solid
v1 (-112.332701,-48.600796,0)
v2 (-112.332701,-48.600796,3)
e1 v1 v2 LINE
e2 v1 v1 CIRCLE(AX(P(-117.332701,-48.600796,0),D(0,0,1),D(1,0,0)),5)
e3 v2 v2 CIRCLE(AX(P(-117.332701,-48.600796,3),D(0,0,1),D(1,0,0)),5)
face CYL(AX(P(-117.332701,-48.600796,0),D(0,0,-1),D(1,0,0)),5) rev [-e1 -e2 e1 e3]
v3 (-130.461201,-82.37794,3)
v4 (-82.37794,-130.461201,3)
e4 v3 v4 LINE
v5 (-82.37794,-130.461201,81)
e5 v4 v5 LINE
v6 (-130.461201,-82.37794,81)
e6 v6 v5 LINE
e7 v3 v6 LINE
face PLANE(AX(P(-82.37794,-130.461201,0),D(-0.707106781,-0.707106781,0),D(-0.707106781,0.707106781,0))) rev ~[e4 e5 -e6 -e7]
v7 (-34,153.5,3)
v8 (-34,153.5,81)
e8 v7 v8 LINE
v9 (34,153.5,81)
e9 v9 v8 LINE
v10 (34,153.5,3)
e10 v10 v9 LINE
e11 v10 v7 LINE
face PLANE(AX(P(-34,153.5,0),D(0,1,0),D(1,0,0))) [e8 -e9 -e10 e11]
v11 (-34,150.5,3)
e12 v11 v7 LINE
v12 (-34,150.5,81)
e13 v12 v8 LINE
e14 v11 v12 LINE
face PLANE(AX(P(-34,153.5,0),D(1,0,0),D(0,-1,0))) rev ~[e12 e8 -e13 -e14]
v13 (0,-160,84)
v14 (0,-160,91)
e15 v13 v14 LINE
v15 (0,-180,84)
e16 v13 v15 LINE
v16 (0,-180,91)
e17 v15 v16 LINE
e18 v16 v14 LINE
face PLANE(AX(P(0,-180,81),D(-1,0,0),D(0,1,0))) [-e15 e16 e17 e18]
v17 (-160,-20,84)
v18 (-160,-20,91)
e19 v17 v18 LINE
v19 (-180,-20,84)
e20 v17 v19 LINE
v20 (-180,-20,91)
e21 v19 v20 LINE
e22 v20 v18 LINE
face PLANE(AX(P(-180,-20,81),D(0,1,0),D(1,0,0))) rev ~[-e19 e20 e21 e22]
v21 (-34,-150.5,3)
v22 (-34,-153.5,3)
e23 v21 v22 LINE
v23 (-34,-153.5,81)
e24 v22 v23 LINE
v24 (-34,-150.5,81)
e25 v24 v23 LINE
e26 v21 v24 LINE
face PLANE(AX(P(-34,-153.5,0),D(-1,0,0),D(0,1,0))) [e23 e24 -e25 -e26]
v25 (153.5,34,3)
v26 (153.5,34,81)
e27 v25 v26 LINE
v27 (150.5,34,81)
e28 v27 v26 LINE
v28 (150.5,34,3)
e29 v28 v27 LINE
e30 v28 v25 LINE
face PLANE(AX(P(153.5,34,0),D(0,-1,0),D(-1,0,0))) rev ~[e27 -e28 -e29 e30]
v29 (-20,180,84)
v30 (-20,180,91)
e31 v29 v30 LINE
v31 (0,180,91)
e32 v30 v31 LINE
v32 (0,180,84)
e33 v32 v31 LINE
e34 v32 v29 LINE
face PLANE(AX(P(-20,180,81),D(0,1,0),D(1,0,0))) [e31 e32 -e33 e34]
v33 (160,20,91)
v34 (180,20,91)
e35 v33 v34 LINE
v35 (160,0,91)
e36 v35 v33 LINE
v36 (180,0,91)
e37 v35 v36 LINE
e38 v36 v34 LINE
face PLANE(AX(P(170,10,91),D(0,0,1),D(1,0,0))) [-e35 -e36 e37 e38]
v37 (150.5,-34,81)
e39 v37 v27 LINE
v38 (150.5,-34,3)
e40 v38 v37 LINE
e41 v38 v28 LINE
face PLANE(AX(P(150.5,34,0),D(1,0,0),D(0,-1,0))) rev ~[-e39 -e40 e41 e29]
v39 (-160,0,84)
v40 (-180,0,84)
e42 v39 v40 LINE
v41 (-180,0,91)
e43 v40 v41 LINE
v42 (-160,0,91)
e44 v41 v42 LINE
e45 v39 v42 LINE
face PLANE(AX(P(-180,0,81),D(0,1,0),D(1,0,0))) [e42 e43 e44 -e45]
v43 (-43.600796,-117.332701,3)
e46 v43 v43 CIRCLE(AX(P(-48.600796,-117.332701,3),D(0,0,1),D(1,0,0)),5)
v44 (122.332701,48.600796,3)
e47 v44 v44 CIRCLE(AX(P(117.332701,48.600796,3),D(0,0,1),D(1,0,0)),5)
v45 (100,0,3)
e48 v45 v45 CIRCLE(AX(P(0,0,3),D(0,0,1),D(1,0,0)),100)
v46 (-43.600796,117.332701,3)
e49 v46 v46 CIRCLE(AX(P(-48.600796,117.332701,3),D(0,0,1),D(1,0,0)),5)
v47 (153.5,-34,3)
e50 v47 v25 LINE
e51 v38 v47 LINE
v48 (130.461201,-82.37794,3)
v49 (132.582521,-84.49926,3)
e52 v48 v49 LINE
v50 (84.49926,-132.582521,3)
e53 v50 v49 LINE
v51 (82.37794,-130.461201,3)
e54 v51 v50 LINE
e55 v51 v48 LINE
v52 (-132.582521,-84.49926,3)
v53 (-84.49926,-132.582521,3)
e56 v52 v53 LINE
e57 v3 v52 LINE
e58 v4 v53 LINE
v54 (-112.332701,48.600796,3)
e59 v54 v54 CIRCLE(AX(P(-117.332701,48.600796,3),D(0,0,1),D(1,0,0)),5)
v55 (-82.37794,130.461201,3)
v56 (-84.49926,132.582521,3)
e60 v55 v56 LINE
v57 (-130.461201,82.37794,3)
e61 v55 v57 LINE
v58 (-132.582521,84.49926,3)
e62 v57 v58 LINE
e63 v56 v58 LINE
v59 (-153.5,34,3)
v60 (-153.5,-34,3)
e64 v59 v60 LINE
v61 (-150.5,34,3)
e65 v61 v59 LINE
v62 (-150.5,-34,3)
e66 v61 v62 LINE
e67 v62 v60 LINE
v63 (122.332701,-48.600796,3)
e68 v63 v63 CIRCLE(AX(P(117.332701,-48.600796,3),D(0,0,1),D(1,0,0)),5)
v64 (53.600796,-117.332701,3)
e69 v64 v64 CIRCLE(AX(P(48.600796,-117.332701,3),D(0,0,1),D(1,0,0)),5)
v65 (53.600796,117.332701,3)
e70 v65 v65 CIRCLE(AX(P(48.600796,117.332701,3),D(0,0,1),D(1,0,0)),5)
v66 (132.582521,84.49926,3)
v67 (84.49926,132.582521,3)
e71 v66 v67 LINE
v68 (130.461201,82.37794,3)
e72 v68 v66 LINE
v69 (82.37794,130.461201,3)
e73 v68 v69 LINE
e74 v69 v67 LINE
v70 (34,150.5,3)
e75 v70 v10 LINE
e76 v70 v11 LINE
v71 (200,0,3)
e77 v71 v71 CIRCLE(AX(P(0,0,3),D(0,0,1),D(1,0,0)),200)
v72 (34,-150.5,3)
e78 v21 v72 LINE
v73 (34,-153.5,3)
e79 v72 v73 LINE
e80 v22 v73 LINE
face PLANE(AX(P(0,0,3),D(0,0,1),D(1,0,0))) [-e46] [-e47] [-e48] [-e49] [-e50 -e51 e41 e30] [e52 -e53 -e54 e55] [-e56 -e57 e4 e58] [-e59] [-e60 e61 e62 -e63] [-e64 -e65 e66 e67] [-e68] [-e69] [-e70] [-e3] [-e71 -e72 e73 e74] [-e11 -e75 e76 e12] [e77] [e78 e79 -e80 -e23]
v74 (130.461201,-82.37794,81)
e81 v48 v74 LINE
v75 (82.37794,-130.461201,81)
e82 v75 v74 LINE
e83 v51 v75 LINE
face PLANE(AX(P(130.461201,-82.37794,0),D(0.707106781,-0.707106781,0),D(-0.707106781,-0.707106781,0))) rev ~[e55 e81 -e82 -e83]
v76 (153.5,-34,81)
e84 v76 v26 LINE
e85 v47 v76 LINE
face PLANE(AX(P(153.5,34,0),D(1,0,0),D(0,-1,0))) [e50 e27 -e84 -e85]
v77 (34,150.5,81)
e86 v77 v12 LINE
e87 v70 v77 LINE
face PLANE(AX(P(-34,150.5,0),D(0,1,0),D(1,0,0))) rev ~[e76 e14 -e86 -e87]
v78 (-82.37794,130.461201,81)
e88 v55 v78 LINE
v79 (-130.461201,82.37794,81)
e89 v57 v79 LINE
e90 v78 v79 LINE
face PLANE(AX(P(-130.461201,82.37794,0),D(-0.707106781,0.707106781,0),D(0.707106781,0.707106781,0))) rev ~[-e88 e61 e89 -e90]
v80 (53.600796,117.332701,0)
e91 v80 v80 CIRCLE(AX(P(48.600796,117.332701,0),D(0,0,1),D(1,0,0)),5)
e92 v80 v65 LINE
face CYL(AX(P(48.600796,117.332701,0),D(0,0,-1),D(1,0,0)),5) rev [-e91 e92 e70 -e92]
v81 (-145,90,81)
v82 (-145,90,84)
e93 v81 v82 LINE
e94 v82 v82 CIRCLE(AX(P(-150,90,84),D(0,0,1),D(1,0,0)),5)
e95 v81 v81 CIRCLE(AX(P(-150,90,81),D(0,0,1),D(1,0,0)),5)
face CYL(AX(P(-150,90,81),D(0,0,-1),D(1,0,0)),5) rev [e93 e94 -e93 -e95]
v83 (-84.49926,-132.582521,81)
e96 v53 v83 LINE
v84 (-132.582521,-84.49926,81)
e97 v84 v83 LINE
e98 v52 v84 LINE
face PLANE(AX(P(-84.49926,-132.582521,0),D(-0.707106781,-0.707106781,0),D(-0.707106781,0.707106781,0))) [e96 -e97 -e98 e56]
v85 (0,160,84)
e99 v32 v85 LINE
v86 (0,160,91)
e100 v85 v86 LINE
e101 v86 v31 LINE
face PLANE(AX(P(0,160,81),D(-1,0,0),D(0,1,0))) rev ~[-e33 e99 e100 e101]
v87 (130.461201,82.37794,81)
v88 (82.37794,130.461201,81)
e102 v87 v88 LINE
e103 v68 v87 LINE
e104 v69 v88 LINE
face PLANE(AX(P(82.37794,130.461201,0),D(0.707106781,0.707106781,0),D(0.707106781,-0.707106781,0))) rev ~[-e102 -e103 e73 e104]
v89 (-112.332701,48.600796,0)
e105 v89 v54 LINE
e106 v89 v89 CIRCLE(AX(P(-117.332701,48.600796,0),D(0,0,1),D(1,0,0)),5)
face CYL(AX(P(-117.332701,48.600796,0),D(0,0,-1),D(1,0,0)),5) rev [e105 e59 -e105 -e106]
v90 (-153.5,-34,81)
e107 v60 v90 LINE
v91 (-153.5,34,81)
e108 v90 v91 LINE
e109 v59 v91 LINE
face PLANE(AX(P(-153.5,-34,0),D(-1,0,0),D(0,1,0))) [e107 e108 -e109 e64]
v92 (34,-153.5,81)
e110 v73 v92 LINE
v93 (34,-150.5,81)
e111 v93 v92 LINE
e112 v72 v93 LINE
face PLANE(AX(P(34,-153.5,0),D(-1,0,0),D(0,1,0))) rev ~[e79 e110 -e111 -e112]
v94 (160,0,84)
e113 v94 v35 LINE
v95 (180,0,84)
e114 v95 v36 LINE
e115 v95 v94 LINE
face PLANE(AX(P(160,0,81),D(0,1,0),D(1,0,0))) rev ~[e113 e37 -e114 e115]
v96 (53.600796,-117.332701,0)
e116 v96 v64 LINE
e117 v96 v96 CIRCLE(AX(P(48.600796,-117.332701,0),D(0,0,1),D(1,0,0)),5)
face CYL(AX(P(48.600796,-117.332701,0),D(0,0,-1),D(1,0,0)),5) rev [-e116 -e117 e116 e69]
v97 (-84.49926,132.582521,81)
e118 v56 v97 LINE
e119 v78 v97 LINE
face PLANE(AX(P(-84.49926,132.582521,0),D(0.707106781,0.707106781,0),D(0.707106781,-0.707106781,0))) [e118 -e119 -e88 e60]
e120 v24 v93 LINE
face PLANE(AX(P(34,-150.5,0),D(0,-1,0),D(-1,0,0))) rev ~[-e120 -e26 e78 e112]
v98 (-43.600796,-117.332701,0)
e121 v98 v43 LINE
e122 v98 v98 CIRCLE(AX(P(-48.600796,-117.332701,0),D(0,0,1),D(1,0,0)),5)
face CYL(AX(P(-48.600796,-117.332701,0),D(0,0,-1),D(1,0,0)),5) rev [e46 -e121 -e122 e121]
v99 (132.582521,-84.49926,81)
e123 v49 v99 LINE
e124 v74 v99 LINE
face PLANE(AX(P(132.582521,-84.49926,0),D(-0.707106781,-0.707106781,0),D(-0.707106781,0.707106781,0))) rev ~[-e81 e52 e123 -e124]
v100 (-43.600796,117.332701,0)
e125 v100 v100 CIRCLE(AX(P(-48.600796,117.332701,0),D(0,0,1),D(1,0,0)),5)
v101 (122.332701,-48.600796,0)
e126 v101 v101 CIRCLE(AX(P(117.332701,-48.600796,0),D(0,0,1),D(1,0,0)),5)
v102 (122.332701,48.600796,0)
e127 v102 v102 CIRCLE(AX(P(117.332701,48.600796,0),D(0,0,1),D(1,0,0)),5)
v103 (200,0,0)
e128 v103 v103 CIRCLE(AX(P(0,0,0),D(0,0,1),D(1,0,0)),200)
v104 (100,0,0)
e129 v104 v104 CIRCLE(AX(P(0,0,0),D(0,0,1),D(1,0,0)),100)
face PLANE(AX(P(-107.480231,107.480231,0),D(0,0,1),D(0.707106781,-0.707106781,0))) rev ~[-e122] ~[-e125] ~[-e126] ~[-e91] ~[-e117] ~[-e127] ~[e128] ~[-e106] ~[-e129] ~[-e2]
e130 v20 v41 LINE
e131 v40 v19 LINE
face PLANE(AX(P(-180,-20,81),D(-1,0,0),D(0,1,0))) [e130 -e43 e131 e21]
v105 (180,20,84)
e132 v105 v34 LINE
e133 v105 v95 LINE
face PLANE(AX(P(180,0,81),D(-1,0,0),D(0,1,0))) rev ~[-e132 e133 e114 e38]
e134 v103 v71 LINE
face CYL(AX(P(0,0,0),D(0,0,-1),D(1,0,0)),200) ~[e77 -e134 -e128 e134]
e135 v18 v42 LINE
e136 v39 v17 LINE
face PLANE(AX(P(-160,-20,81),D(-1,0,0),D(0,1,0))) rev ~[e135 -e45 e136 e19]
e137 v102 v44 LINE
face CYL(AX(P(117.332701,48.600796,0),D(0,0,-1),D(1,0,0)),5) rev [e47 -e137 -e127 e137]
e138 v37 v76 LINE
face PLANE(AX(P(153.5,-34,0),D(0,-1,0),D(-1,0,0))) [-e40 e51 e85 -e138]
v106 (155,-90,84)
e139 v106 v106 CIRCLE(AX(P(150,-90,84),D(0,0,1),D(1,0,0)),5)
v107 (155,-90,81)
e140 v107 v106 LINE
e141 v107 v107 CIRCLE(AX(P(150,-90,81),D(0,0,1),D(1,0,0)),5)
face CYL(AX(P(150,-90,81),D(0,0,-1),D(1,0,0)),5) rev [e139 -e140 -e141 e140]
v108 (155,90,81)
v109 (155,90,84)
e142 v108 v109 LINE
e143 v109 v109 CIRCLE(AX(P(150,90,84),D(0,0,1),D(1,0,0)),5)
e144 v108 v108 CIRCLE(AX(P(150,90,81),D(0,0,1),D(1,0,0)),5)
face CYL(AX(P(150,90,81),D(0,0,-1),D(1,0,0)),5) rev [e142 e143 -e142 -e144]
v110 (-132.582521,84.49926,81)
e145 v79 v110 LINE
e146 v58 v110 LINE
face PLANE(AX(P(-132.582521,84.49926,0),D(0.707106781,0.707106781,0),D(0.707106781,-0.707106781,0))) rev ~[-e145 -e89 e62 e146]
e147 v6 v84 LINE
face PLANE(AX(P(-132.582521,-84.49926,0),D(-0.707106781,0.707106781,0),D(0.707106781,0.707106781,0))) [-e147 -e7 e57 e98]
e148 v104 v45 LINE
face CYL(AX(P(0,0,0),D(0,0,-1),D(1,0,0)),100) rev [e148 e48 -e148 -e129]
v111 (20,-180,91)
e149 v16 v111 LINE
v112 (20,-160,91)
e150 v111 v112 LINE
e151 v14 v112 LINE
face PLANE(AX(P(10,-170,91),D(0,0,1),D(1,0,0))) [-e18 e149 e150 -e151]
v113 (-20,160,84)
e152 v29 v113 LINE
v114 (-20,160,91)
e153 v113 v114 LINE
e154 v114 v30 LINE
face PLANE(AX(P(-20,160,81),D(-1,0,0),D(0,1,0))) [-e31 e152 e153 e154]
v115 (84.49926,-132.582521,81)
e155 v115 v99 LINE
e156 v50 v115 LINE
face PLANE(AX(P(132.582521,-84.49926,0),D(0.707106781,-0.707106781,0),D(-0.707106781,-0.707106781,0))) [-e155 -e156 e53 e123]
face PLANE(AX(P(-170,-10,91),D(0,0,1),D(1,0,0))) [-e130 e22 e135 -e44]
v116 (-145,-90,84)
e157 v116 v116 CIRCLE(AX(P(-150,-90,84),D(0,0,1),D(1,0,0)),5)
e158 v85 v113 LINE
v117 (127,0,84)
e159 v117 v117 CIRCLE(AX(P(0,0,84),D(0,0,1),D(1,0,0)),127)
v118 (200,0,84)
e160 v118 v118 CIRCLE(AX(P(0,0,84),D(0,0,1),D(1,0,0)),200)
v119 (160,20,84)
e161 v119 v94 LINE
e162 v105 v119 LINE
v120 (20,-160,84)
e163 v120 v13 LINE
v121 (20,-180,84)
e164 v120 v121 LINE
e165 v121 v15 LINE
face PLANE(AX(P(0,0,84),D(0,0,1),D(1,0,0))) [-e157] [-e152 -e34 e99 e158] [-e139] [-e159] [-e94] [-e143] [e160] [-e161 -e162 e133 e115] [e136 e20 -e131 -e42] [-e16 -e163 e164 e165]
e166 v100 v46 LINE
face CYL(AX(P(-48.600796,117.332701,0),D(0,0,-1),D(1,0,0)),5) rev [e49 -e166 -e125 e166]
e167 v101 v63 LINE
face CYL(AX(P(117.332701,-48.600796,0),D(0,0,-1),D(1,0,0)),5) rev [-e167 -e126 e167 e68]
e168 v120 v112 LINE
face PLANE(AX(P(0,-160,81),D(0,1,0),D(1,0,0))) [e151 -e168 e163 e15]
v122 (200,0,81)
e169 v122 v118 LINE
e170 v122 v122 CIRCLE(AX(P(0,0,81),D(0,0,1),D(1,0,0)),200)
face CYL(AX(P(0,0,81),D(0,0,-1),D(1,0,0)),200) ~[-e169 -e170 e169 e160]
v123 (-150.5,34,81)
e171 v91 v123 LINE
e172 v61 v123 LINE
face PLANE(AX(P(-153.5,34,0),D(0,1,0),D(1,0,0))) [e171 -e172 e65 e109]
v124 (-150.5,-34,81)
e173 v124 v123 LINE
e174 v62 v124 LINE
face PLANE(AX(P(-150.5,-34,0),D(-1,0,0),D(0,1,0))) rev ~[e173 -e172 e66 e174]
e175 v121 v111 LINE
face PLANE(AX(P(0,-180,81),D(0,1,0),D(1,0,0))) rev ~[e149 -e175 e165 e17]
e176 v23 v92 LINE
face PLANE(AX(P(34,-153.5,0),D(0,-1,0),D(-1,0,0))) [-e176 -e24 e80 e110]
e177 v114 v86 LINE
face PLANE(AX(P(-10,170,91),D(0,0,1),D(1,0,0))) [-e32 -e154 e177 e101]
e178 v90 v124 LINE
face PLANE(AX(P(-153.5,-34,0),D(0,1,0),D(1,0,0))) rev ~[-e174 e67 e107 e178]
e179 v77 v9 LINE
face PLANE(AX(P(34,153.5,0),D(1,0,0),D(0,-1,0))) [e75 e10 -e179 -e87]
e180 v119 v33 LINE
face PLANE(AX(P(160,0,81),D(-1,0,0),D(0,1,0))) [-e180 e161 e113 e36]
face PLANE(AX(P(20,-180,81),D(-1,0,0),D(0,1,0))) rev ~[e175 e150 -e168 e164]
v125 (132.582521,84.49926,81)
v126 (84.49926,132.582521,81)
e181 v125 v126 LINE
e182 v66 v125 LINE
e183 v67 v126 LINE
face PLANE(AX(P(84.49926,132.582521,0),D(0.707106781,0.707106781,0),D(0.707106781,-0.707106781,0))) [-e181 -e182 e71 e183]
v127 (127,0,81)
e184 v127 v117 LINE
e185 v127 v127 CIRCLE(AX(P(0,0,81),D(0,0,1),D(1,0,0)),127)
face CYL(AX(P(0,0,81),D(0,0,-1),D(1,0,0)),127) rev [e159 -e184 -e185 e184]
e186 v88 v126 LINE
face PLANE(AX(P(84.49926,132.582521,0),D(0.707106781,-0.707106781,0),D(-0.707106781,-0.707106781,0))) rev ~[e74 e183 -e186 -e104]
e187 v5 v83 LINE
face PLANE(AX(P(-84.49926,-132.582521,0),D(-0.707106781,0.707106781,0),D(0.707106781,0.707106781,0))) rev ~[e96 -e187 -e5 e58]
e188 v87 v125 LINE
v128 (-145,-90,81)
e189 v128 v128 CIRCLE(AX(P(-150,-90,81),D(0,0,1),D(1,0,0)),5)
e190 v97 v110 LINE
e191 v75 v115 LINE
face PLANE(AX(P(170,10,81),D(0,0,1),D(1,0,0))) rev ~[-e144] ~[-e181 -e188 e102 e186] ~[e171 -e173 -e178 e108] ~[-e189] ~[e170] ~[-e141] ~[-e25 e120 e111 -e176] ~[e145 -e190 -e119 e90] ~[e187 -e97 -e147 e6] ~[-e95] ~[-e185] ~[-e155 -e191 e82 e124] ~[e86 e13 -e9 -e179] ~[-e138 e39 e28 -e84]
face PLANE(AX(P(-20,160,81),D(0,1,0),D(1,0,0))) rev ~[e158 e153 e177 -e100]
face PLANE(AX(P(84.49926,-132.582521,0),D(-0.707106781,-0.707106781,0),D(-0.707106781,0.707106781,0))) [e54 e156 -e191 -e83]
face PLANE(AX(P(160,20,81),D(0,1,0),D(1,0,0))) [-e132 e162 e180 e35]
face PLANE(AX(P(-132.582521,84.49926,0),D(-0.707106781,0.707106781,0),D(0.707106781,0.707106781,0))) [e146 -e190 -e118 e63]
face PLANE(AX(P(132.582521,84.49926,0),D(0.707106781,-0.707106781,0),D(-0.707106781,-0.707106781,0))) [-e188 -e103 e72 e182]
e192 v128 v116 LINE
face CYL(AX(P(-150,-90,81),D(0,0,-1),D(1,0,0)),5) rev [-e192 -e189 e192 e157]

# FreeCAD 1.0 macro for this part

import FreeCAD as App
import Part
import Sketcher


def add_polygon(sketch, points):
    """Adds a closed chain of lines whose ends are joined by coincident constraints."""
    first, n = sketch.GeometryCount, len(points)
    for a, b in zip(points, points[1:] + points[:1]):
        sketch.addGeometry(Part.LineSegment(App.Vector(*a, 0), App.Vector(*b, 0)), False)
    for i in range(n):
        sketch.addConstraint(Sketcher.Constraint("Coincident", first + i, 2, first + (i + 1) % n, 1))

doc = App.newDocument("Part")
body = doc.addObject("PartDesign::Body", "Body")

# Sketch on XY plane
sketch1 = body.newObject("Sketcher::SketchObject", "Sketch")
sketch1.AttachmentSupport = (doc.getObject("XY_Plane"), [""])
sketch1.MapMode = "FlatFace"
sketch1.addGeometry([
    Part.Circle(App.Vector(0, 0, 0), App.Vector(0, 0, 1), 200),  # 0
    Part.Circle(App.Vector(-49, -117, 0), App.Vector(0, 0, 1), 5),  # 1
    Part.Circle(App.Vector(-117, -49, 0), App.Vector(0, 0, 1), 5),  # 2
    Part.Circle(App.Vector(49, -117, 0), App.Vector(0, 0, 1), 5),  # 3
    Part.Circle(App.Vector(117, -49, 0), App.Vector(0, 0, 1), 5),  # 4
    Part.Circle(App.Vector(-117, 49, 0), App.Vector(0, 0, 1), 5),  # 5
    Part.Circle(App.Vector(-49, 117, 0), App.Vector(0, 0, 1), 5),  # 6
    Part.Circle(App.Vector(0, 0, 0), App.Vector(0, 0, 1), 100),  # 7
    Part.Circle(App.Vector(117, 49, 0), App.Vector(0, 0, 1), 5),  # 8
    Part.Circle(App.Vector(49, 117, 0), App.Vector(0, 0, 1), 5),  # 9
], False)
sketch1.addConstraint([
    Sketcher.Constraint("Coincident", 0, 3, -1, 1),
    Sketcher.Constraint("Coincident", 7, 3, -1, 1),
    Sketcher.Constraint("Equal", 1, 2),
    Sketcher.Constraint("Equal", 2, 3),
    Sketcher.Constraint("Equal", 3, 4),
    Sketcher.Constraint("Equal", 4, 5),
    Sketcher.Constraint("Equal", 5, 6),
    Sketcher.Constraint("Equal", 6, 8),
    Sketcher.Constraint("Equal", 8, 9),
    Sketcher.Constraint("Symmetric", 4, 3, 5, 3, -1, 1),
    Sketcher.Constraint("Symmetric", 3, 3, 6, 3, -1, 1),
    Sketcher.Constraint("Symmetric", 2, 3, 8, 3, -1, 1),
    Sketcher.Constraint("Symmetric", 1, 3, 9, 3, -1, 1),
    Sketcher.Constraint("Symmetric", 1, 3, 3, 3, -2),
    Sketcher.Constraint("Symmetric", 2, 3, 4, 3, -2),
    Sketcher.Constraint("Diameter", 0, 400.0),
    Sketcher.Constraint("Diameter", 1, 10.0),
    Sketcher.Constraint("Diameter", 7, 200.0),
    Sketcher.Constraint("DistanceY", 1, 3, -1, 1, 117.332701),
    Sketcher.Constraint("DistanceX", 2, 3, -1, 1, 117.332701),
    Sketcher.Constraint("DistanceX", 1, 3, -1, 1, 48.600796),
    Sketcher.Constraint("DistanceY", 2, 3, -1, 1, 48.600796),
])
pad1 = body.newObject("PartDesign::Pad", "Pad")
pad1.Profile = sketch1
pad1.Length = 3

# Sketch on XY plane
sketch2 = body.newObject("Sketcher::SketchObject", "Sketch001")
sketch2.AttachmentSupport = (doc.getObject("XY_Plane"), [""])
sketch2.MapMode = "FlatFace"
add_polygon(sketch2, [(-153.5, 34), (-153.5, -34), (-150.5, -34), (-150.5, 34)])  # lines 0-3
sketch2.addConstraint([
    Sketcher.Constraint("Vertical", 0),
    Sketcher.Constraint("Horizontal", 1),
    Sketcher.Constraint("Vertical", 2),
    Sketcher.Constraint("Horizontal", 3),
    Sketcher.Constraint("DistanceX", 1, 1, 1, 2, 3.0),
    Sketcher.Constraint("DistanceY", 0, 2, 0, 1, 68.0),
    Sketcher.Constraint("DistanceY", 0, 2, -1, 1, 34.0),
    Sketcher.Constraint("DistanceX", 0, 2, -1, 1, 153.5),
])
pad2 = body.newObject("PartDesign::Pad", "Pad001")
pad2.Profile = sketch2
pad2.Length = 84

# Sketch on XY plane
sketch3 = body.newObject("Sketcher::SketchObject", "Sketch002")
sketch3.AttachmentSupport = (doc.getObject("XY_Plane"), [""])
sketch3.MapMode = "FlatFace"
sketch3.AttachmentOffset = App.Placement(App.Vector(0, 0, 81), App.Rotation())
sketch3.addGeometry([
    Part.Circle(App.Vector(0, 0, 0), App.Vector(0, 0, 1), 200),  # 0
    Part.Circle(App.Vector(-150, -90, 0), App.Vector(0, 0, 1), 5),  # 1
    Part.Circle(App.Vector(150, -90, 0), App.Vector(0, 0, 1), 5),  # 2
    Part.Circle(App.Vector(-150, 90, 0), App.Vector(0, 0, 1), 5),  # 3
    Part.Circle(App.Vector(0, 0, 0), App.Vector(0, 0, 1), 127),  # 4
    Part.Circle(App.Vector(150, 90, 0), App.Vector(0, 0, 1), 5),  # 5
], False)
sketch3.addConstraint([
    Sketcher.Constraint("Coincident", 0, 3, -1, 1),
    Sketcher.Constraint("Coincident", 4, 3, -1, 1),
    Sketcher.Constraint("Equal", 1, 2),
    Sketcher.Constraint("Equal", 2, 3),
    Sketcher.Constraint("Equal", 3, 5),
    Sketcher.Constraint("Symmetric", 2, 3, 3, 3, -1, 1),
    Sketcher.Constraint("Symmetric", 1, 3, 5, 3, -1, 1),
    Sketcher.Constraint("Symmetric", 1, 3, 2, 3, -2),
    Sketcher.Constraint("Diameter", 0, 400.0),
    Sketcher.Constraint("Diameter", 1, 10.0),
    Sketcher.Constraint("Diameter", 4, 254.0),
    Sketcher.Constraint("DistanceX", 1, 3, -1, 1, 150.0),
    Sketcher.Constraint("DistanceY", 1, 3, -1, 1, 90.0),
])
pad3 = body.newObject("PartDesign::Pad", "Pad002")
pad3.Profile = sketch3
pad3.Length = 3
doc.recompute()

polarpattern = body.newObject("PartDesign::PolarPattern", "PolarPattern")
polarpattern.Originals = [pad2]
polarpattern.Axis = (doc.getObject("Z_Axis"), [""])
polarpattern.Angle = 360
polarpattern.Occurrences = 8
body.Tip = polarpattern

# Sketch on XY plane
sketch4 = body.newObject("Sketcher::SketchObject", "Sketch003")
sketch4.AttachmentSupport = (doc.getObject("XY_Plane"), [""])
sketch4.MapMode = "FlatFace"
sketch4.AttachmentOffset = App.Placement(App.Vector(0, 0, 81), App.Rotation())
add_polygon(sketch4, [(160, 20), (160, 0), (180, 0), (180, 20)])  # lines 0-3
add_polygon(sketch4, [(-20, 180), (-20, 160), (0, 160), (0, 180)])  # lines 4-7
add_polygon(sketch4, [(-180, 0), (-180, -20), (-160, -20), (-160, 0)])  # lines 8-11
add_polygon(sketch4, [(0, -160), (0, -180), (20, -180), (20, -160)])  # lines 12-15
sketch4.addConstraint([
    Sketcher.Constraint("Vertical", 0),
    Sketcher.Constraint("Horizontal", 1),
    Sketcher.Constraint("Vertical", 2),
    Sketcher.Constraint("Horizontal", 3),
    Sketcher.Constraint("Vertical", 4),
    Sketcher.Constraint("Horizontal", 5),
    Sketcher.Constraint("Vertical", 6),
    Sketcher.Constraint("Horizontal", 7),
    Sketcher.Constraint("Vertical", 8),
    Sketcher.Constraint("Horizontal", 9),
    Sketcher.Constraint("Vertical", 10),
    Sketcher.Constraint("Horizontal", 11),
    Sketcher.Constraint("Vertical", 12),
    Sketcher.Constraint("Horizontal", 13),
    Sketcher.Constraint("Vertical", 14),
    Sketcher.Constraint("Horizontal", 15),
    Sketcher.Constraint("Symmetric", 2, 2, 8, 2, -1, 1),
    Sketcher.Constraint("Symmetric", 0, 2, 10, 2, -1, 1),
    Sketcher.Constraint("Symmetric", 6, 2, 12, 2, -1, 1),
    Sketcher.Constraint("Symmetric", 4, 2, 14, 2, -1, 1),
    Sketcher.Constraint("PointOnObject", 0, 2, -1),
    Sketcher.Constraint("PointOnObject", 5, 2, -2),
    Sketcher.Constraint("Equal", 3, 5),
    Sketcher.Constraint("Equal", 15, 0),
    Sketcher.Constraint("Equal", 2, 4),
    Sketcher.Constraint("DistanceX", 1, 1, 1, 2, 20.0),
    Sketcher.Constraint("DistanceX", -1, 1, 0, 2, 160.0),
    Sketcher.Constraint("DistanceY", -1, 1, 4, 2, 160.0),
])
pad4 = body.newObject("PartDesign::Pad", "Pad003")
pad4.Profile = sketch4
pad4.Length = 10

doc.recompute()
